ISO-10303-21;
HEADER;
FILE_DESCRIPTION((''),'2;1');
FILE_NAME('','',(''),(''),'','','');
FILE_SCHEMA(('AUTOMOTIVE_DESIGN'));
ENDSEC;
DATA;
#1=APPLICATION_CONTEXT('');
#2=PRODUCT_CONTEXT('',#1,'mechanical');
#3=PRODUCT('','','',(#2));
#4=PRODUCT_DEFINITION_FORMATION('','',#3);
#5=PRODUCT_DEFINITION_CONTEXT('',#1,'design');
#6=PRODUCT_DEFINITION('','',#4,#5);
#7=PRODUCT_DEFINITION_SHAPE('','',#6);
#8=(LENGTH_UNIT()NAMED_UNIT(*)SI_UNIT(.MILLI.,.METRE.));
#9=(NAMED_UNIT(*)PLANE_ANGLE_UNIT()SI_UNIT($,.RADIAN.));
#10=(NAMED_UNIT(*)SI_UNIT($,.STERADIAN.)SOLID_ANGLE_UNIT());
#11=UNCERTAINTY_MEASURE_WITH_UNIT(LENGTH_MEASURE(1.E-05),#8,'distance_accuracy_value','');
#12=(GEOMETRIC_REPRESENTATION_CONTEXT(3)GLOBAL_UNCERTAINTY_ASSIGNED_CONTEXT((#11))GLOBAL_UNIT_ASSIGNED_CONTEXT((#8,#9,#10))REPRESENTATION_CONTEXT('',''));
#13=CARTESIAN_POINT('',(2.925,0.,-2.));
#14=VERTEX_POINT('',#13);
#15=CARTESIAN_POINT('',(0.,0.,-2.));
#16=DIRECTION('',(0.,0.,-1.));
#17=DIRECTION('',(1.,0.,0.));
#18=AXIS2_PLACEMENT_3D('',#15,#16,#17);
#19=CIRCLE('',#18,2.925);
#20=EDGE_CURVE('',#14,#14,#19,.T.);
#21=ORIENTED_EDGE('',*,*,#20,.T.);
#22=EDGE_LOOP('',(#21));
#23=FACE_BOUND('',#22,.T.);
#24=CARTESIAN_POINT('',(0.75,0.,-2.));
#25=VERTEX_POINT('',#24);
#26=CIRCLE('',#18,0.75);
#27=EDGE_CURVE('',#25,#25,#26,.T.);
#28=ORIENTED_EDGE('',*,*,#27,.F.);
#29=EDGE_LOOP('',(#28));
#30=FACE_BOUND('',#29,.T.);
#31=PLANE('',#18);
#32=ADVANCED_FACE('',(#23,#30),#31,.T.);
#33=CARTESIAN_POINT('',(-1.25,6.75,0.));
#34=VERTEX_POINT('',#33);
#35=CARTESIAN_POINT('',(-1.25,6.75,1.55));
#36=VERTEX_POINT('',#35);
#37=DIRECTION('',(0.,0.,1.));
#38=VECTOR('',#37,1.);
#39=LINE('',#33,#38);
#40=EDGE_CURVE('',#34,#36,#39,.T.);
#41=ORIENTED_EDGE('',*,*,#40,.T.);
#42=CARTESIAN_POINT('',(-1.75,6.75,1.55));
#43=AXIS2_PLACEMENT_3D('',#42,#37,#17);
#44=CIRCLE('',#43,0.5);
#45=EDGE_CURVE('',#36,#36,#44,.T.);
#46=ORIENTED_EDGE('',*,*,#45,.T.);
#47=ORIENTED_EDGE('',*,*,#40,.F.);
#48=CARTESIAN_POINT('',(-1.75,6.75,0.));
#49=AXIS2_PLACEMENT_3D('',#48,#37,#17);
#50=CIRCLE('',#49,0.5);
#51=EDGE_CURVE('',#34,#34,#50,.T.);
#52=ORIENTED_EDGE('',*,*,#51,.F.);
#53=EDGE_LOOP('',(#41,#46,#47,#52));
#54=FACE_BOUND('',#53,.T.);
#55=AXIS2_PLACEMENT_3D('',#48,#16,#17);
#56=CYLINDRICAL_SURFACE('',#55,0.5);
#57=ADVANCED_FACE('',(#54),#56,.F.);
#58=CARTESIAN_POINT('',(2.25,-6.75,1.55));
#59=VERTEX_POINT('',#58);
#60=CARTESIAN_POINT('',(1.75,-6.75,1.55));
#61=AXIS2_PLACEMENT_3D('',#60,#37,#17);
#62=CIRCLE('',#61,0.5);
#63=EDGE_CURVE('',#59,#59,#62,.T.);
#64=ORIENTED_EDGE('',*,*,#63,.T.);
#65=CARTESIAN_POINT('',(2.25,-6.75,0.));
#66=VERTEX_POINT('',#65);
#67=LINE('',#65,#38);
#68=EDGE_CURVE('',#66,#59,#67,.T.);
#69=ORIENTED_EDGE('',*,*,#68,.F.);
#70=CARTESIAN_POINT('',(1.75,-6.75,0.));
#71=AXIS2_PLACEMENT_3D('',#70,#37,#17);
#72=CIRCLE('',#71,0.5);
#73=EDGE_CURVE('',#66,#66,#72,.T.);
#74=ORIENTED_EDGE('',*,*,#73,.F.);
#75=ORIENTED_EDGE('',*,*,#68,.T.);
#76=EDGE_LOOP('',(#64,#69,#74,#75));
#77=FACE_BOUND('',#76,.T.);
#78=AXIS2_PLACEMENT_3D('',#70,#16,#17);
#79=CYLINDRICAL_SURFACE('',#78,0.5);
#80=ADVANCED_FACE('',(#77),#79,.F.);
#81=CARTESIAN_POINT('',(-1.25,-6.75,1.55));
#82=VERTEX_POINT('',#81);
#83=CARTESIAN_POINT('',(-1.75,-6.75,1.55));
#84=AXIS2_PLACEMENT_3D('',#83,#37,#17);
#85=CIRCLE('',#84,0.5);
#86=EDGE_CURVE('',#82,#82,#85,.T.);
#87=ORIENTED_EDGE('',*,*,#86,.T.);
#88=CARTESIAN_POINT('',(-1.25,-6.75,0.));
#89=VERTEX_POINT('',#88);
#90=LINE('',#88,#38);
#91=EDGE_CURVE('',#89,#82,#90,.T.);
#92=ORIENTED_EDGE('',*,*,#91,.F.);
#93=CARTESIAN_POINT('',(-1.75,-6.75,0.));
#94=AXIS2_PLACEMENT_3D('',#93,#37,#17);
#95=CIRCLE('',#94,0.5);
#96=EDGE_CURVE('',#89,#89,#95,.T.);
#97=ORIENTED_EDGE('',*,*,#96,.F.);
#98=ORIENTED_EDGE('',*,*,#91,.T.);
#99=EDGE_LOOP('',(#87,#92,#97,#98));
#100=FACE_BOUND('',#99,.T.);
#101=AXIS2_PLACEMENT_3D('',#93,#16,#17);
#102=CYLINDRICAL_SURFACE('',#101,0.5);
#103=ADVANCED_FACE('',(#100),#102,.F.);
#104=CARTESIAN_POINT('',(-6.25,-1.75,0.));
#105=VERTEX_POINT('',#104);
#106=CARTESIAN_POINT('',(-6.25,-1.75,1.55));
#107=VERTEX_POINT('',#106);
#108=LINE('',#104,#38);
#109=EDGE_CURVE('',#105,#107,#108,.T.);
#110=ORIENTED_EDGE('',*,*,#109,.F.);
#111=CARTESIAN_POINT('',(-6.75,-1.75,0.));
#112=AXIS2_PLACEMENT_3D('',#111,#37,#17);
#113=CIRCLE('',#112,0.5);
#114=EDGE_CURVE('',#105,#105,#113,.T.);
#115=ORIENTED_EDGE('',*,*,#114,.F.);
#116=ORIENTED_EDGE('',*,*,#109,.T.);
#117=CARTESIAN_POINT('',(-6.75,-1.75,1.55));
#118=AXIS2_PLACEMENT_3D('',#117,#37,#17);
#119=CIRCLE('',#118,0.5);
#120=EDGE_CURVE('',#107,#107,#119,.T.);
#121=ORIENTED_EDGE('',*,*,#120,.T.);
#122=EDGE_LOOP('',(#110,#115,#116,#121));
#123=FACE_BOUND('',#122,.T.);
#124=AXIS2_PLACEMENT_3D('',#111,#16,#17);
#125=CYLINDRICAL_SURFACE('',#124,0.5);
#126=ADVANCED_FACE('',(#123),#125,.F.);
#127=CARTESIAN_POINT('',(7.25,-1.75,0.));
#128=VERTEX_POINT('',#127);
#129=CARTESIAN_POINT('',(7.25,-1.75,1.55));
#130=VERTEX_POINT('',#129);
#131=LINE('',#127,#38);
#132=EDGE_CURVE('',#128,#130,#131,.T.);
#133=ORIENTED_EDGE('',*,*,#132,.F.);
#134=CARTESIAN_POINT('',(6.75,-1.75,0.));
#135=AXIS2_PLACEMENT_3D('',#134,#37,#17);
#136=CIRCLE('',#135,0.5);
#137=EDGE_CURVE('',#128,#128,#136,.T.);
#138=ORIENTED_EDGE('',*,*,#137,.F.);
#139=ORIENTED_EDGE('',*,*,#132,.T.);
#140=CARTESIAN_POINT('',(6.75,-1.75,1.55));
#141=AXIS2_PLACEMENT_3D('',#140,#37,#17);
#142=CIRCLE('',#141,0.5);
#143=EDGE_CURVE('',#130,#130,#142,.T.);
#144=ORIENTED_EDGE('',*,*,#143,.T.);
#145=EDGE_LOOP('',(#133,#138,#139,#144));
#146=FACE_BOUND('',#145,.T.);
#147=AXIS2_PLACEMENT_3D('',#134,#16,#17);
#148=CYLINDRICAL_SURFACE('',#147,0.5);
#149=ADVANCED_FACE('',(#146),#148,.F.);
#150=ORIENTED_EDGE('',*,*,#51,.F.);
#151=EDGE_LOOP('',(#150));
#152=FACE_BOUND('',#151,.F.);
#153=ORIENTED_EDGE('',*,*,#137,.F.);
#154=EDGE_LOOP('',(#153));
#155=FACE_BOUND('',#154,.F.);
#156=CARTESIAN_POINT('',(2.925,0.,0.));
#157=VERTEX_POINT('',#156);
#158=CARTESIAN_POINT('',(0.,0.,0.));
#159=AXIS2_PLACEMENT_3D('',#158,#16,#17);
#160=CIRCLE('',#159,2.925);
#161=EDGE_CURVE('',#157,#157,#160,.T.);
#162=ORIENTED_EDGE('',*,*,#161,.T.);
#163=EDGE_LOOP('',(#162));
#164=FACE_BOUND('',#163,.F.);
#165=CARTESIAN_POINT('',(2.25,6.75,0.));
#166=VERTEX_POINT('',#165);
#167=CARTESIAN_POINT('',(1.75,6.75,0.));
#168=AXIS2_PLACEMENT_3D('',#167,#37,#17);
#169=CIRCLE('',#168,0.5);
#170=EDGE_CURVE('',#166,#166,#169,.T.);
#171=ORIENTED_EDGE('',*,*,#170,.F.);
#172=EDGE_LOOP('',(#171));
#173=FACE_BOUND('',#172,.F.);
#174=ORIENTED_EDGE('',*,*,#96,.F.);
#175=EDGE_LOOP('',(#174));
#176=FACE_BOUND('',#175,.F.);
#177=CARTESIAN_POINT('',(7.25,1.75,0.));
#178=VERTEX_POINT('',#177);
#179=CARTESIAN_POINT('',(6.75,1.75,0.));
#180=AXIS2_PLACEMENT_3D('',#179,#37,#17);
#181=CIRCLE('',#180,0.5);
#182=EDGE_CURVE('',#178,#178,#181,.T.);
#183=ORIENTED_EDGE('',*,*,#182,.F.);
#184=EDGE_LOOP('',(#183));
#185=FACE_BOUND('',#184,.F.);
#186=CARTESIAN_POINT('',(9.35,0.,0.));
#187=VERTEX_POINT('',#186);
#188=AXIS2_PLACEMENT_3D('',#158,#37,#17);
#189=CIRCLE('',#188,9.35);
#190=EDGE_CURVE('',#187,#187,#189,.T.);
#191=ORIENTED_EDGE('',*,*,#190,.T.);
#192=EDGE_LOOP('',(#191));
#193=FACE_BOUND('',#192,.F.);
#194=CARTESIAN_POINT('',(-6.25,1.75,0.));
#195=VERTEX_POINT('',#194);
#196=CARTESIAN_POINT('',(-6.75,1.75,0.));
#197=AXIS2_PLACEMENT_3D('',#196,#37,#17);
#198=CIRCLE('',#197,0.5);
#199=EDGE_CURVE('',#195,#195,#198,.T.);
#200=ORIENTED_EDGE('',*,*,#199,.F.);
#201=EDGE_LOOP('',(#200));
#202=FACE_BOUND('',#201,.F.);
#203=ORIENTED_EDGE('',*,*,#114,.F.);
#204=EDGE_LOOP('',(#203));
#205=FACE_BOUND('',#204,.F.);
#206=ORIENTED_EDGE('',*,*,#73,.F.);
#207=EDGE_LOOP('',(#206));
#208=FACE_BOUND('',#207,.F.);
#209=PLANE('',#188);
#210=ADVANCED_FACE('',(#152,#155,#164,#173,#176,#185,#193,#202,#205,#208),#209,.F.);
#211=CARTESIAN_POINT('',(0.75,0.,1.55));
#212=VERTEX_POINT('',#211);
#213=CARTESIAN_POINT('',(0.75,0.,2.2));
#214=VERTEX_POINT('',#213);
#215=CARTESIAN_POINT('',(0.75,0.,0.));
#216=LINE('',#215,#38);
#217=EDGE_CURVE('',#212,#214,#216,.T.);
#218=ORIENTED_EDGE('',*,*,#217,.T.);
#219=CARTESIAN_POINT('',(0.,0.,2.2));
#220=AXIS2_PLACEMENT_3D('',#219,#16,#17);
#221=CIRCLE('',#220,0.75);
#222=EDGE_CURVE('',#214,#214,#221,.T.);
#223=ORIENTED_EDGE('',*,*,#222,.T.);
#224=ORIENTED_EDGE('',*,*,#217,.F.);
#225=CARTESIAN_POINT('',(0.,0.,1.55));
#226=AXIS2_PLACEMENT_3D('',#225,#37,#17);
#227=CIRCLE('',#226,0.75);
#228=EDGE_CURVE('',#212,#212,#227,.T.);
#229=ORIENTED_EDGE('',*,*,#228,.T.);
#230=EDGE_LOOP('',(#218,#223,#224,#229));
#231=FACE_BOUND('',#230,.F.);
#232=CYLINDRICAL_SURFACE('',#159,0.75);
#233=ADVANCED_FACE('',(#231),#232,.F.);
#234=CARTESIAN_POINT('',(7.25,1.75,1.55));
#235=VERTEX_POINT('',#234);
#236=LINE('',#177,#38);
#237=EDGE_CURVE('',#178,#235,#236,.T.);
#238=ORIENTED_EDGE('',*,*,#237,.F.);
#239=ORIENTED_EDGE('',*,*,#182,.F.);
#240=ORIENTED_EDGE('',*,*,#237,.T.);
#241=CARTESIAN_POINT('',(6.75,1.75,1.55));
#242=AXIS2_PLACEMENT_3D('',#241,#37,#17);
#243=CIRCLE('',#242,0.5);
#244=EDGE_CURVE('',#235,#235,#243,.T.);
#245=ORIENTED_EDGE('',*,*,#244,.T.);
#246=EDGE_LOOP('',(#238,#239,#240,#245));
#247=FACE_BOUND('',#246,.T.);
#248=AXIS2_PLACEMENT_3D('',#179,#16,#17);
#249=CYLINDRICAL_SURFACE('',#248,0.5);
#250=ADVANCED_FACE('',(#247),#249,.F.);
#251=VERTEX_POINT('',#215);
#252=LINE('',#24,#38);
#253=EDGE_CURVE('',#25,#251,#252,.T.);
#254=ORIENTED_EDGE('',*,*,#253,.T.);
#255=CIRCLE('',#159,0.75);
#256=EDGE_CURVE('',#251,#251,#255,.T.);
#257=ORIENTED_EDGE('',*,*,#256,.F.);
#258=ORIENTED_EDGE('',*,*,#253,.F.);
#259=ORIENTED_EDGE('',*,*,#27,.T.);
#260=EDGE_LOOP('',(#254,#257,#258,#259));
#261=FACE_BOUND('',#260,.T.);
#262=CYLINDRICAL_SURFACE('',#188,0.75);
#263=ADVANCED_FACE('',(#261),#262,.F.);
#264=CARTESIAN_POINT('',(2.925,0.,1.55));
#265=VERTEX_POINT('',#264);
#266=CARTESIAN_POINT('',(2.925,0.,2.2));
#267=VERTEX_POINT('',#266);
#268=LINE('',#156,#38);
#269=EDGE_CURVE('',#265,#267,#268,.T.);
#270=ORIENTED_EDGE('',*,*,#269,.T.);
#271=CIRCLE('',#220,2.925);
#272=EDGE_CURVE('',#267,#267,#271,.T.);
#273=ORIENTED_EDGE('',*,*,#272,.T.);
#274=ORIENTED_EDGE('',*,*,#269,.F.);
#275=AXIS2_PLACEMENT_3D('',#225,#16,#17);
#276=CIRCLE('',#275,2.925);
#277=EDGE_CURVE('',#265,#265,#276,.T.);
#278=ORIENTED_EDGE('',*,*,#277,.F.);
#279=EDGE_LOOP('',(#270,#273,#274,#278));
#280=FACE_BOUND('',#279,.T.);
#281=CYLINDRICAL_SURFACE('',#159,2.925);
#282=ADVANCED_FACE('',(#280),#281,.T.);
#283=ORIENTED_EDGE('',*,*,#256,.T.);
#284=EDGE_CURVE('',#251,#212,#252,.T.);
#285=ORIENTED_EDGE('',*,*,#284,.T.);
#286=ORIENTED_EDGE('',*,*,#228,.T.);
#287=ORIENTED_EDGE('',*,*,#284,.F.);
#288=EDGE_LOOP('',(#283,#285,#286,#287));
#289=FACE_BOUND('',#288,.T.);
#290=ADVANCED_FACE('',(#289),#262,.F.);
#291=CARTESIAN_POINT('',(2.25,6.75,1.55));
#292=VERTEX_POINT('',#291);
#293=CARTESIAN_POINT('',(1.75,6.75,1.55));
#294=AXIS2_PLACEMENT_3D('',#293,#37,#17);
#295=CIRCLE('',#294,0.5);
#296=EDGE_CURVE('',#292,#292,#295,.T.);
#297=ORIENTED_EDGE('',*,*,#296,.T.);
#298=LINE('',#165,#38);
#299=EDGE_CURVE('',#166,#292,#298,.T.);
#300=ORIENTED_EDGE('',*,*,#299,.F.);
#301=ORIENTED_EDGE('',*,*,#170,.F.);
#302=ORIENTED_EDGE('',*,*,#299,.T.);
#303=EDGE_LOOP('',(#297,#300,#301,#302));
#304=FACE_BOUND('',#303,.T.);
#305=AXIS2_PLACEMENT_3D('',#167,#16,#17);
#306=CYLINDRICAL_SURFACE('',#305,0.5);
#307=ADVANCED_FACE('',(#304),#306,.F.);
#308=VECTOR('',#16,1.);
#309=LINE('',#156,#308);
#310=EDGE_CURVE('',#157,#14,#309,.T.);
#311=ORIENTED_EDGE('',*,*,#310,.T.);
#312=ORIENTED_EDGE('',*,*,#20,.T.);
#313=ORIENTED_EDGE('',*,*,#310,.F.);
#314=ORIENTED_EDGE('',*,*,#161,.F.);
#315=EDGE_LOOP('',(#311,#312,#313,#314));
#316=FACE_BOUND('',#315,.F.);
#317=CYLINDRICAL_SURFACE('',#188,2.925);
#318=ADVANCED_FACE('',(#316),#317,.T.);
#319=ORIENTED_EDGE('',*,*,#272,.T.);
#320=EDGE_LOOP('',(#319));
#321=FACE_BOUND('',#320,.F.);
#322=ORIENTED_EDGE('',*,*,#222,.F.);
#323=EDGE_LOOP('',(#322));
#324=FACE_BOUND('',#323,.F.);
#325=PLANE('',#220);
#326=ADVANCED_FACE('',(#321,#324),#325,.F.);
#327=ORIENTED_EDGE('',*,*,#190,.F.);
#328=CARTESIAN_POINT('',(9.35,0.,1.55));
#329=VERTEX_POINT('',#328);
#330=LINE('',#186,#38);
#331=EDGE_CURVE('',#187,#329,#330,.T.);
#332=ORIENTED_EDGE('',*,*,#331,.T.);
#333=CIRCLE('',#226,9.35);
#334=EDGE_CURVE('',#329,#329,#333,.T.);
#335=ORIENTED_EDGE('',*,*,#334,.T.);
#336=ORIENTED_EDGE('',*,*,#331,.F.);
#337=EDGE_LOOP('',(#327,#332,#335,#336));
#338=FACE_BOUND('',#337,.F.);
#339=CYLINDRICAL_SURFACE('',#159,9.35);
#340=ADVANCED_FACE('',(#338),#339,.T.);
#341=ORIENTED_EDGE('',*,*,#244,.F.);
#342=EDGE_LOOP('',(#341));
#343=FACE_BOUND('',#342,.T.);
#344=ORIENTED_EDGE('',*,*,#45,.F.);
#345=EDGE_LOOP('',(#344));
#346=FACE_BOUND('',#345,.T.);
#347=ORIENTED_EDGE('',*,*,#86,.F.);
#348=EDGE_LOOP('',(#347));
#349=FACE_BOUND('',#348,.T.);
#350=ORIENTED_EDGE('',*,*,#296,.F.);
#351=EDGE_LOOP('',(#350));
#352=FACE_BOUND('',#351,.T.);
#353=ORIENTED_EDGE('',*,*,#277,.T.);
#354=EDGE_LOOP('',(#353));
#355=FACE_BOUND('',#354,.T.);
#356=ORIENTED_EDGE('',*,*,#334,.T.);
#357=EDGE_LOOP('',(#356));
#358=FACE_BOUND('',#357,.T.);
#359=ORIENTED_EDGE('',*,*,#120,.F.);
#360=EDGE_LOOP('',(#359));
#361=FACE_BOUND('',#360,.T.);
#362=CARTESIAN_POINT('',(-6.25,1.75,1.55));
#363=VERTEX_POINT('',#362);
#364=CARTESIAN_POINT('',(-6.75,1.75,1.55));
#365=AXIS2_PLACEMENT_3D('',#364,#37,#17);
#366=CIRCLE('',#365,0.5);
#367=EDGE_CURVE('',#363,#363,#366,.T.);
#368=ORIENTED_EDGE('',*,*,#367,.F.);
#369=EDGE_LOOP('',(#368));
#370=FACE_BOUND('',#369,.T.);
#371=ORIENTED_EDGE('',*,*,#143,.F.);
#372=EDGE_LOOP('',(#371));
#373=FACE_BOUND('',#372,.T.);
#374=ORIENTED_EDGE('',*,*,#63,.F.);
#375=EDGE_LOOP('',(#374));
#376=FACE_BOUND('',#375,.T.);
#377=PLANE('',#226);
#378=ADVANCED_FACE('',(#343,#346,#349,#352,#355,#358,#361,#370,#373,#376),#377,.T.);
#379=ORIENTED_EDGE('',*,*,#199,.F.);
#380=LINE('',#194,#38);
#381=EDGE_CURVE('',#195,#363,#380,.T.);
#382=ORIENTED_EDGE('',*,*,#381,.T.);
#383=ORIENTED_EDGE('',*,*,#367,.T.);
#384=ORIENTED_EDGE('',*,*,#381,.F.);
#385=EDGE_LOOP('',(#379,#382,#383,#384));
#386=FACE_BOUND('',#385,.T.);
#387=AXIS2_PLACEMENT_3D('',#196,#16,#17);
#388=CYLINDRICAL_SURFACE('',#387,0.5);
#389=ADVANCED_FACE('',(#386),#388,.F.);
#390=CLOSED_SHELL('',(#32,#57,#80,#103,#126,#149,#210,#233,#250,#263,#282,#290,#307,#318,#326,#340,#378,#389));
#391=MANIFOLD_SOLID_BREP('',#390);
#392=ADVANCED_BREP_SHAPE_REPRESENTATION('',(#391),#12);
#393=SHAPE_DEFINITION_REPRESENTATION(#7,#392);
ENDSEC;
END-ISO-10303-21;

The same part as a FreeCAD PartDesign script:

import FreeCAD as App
import Part
import Sketcher

V = App.Vector
Q = App.Units.Quantity

doc = App.newDocument("Part")
params = doc.addObject("Spreadsheet::Sheet", "Params")
for row, (alias, value) in enumerate([
    ("sketch1_diameter", "1 mm"),
    ("sketch1_diameter2", "18.7 mm"),
    ("sketch1_diameter3", "1.5 mm"),
    ("pad1_length", "1.55 mm"),
    ("sketch2_diameter", "1.5 mm"),
    ("sketch2_diameter2", "5.85 mm"),
    ("pad2_length", "2 mm"),
    ("pad2_length2", "2.2 mm"),
], start=1):
    params.set(f"A{row}", alias)
    params.set(f"B{row}", "=" + value)
    params.setAlias(f"B{row}", alias)

body = doc.addObject("PartDesign::Body", "Body")

sketch1 = body.newObject("Sketcher::SketchObject", "Sketch")
sketch1.AttachmentSupport = (doc.getObject("XY_Plane"), [""])
sketch1.MapMode = "FlatFace"
sketch1.addGeometry([
    Part.Circle(V(0, 0, 0), V(0, 0, 1), 9.35),
    Part.Circle(V(-1.75, -6.75, 0), V(0, 0, 1), 0.5),
    Part.Circle(V(-6.75, -1.75, 0), V(0, 0, 1), 0.5),
    Part.Circle(V(1.75, -6.75, 0), V(0, 0, 1), 0.5),
    Part.Circle(V(6.75, -1.75, 0), V(0, 0, 1), 0.5),
    Part.Circle(V(-6.75, 1.75, 0), V(0, 0, 1), 0.5),
    Part.Circle(V(-1.75, 6.75, 0), V(0, 0, 1), 0.5),
    Part.Circle(V(0, 0, 0), V(0, 0, 1), 0.75),
    Part.Circle(V(6.75, 1.75, 0), V(0, 0, 1), 0.5),
    Part.Circle(V(1.75, 6.75, 0), V(0, 0, 1), 0.5),
], False)
sketch1.addConstraint([
    Sketcher.Constraint("Coincident", 0, 3, -1, 1),
    Sketcher.Constraint("Coincident", 7, 3, -1, 1),
    Sketcher.Constraint("Equal", 1, 2),
    Sketcher.Constraint("Equal", 2, 3),
    Sketcher.Constraint("Equal", 3, 4),
    Sketcher.Constraint("Equal", 4, 5),
    Sketcher.Constraint("Equal", 5, 6),
    Sketcher.Constraint("Equal", 6, 8),
    Sketcher.Constraint("Equal", 8, 9),
    Sketcher.Constraint("Symmetric", 4, 3, 5, 3, -1, 1),
    Sketcher.Constraint("Symmetric", 3, 3, 6, 3, -1, 1),
    Sketcher.Constraint("Symmetric", 2, 3, 8, 3, -1, 1),
    Sketcher.Constraint("Symmetric", 1, 3, 9, 3, -1, 1),
    Sketcher.Constraint("Symmetric", 1, 3, 3, 3, -2),
    Sketcher.Constraint("Symmetric", 2, 3, 4, 3, -2),
    Sketcher.Constraint("Diameter", 1, Q("1 mm")),
    Sketcher.Constraint("Diameter", 0, Q("18.7 mm")),
    Sketcher.Constraint("Diameter", 7, Q("1.5 mm")),
    Sketcher.Constraint("DistanceX", 2, 3, 1, 3, Q("5 mm")),
    Sketcher.Constraint("DistanceY", 1, 3, 2, 3, Q("5 mm")),
    Sketcher.Constraint("DistanceX", 1, 3, 3, 3, Q("3.5 mm")),
    Sketcher.Constraint("DistanceY", 2, 3, 5, 3, Q("3.5 mm")),
])
sketch1.setExpression("Constraints[15]", "Params.sketch1_diameter")
sketch1.setExpression("Constraints[16]", "Params.sketch1_diameter2")
sketch1.setExpression("Constraints[17]", "Params.sketch1_diameter3")
pad1 = body.newObject("PartDesign::Pad", "Pad")
pad1.Profile = sketch1
pad1.setExpression("Length", "Params.pad1_length")

sketch2 = body.newObject("Sketcher::SketchObject", "Sketch001")
sketch2.AttachmentSupport = (doc.getObject("XY_Plane"), [""])
sketch2.MapMode = "FlatFace"
sketch2.addGeometry([
    Part.Circle(V(0, 0, 0), V(0, 0, 1), 2.925),
    Part.Circle(V(0, 0, 0), V(0, 0, 1), 0.75),
], False)
sketch2.addConstraint([
    Sketcher.Constraint("Coincident", 0, 3, -1, 1),
    Sketcher.Constraint("Coincident", 1, 3, -1, 1),
    Sketcher.Constraint("Diameter", 1, Q("1.5 mm")),
    Sketcher.Constraint("Diameter", 0, Q("5.85 mm")),
])
sketch2.setExpression("Constraints[2]", "Params.sketch2_diameter")
sketch2.setExpression("Constraints[3]", "Params.sketch2_diameter2")
pad2 = body.newObject("PartDesign::Pad", "Pad001")
pad2.Profile = sketch2
pad2.Type = "TwoLengths"
pad2.setExpression("Length", "Params.pad2_length")
pad2.setExpression("Length2", "Params.pad2_length2")
pad2.Reversed = True

doc.recompute()
